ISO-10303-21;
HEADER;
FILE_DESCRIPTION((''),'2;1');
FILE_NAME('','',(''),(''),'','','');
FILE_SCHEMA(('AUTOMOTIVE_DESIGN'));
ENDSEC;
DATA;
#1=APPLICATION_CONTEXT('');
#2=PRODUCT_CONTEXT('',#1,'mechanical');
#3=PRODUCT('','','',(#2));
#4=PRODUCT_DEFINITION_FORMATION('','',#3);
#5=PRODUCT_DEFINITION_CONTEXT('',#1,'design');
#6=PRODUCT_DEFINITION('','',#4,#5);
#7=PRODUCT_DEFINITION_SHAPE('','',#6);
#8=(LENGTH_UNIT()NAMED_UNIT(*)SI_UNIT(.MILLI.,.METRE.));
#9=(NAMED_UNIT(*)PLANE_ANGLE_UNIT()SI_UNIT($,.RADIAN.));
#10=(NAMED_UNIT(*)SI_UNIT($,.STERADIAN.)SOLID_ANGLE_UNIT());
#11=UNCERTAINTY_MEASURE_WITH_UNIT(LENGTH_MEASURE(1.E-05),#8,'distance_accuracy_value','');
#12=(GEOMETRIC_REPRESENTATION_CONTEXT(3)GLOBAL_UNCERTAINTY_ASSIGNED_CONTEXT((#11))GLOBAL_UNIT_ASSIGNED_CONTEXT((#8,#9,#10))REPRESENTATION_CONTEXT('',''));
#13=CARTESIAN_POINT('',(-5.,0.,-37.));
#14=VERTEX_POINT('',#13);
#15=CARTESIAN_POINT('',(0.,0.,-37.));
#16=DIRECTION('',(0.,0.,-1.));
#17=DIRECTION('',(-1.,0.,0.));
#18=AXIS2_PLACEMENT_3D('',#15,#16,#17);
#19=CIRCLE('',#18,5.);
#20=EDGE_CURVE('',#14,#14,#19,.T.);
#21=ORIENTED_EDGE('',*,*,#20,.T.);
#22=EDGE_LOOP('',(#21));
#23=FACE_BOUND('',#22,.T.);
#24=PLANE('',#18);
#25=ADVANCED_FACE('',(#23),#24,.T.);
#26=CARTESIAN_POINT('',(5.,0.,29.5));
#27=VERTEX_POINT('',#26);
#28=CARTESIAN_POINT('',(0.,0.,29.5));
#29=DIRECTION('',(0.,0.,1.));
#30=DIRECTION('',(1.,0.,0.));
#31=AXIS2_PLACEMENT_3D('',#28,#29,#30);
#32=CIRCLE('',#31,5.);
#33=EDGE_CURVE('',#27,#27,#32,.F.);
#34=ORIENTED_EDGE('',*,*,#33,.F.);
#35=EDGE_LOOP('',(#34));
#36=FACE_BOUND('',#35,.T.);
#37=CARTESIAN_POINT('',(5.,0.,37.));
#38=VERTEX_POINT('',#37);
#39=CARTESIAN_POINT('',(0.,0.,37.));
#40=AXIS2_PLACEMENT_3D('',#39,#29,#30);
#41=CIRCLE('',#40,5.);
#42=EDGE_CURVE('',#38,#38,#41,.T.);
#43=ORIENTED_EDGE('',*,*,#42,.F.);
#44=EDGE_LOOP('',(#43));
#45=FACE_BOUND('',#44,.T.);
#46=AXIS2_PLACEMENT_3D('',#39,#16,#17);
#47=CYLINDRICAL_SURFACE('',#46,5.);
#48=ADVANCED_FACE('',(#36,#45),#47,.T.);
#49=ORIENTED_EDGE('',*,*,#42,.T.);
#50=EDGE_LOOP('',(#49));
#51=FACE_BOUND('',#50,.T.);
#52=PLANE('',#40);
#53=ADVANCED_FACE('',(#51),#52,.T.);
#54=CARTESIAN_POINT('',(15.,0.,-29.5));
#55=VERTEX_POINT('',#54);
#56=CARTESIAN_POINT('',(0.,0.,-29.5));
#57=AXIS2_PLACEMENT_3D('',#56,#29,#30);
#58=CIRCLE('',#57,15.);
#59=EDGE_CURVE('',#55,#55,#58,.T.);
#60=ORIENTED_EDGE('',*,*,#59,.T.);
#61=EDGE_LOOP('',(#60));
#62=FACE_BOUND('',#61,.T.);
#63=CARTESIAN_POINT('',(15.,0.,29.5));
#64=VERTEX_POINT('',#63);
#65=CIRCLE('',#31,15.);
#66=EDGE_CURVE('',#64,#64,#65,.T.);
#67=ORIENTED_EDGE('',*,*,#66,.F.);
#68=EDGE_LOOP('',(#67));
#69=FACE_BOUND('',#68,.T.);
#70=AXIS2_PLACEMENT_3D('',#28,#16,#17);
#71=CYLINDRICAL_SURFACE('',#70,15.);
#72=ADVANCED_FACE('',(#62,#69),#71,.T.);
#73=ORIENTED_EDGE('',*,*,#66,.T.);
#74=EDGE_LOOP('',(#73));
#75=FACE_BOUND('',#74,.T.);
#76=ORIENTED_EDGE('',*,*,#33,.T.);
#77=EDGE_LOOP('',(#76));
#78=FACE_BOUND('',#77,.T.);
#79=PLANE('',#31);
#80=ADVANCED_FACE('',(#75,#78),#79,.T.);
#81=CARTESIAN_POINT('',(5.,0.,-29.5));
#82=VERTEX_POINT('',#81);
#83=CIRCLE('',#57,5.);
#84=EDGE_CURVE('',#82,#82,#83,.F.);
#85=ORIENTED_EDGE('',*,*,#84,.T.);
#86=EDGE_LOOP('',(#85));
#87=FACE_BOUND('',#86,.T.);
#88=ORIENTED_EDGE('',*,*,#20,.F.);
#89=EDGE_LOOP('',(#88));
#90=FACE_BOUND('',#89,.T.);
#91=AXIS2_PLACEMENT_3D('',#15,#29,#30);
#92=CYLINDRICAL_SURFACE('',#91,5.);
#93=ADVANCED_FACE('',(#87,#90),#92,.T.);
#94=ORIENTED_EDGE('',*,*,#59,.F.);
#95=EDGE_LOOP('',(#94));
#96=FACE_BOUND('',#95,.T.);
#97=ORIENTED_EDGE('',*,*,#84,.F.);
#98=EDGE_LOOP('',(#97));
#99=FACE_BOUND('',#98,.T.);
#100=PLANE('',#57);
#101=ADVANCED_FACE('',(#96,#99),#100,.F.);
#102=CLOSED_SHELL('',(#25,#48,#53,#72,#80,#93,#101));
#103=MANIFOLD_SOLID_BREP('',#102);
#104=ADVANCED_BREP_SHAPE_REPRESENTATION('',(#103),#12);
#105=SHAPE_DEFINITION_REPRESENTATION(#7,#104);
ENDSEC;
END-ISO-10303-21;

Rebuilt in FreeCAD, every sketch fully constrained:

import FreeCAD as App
import Part
import Sketcher
Q = App.Units.Quantity

doc = App.newDocument("Part")
body = doc.addObject("PartDesign::Body", "Body")

# Sketch on XY plane
sketch1 = body.newObject("Sketcher::SketchObject", "Sketch")
sketch1.AttachmentSupport = (doc.getObject("XY_Plane"), [""])
sketch1.MapMode = "FlatFace"
sketch1.addGeometry(Part.Circle(App.Vector(0, 0, 0), App.Vector(0, 0, 1), 15), False)
sketch1.addConstraint([
    Sketcher.Constraint("Coincident", 0, 3, -1, 1),
    Sketcher.Constraint("Diameter", 0, Q("30 mm")),
])
pad1 = body.newObject("PartDesign::Pad", "Pad")
pad1.Profile = sketch1
pad1.Length = 59
pad1.Midplane = True

# Sketch on XY plane
sketch2 = body.newObject("Sketcher::SketchObject", "Sketch001")
sketch2.AttachmentSupport = (doc.getObject("XY_Plane"), [""])
sketch2.MapMode = "FlatFace"
sketch2.AttachmentOffset = App.Placement(App.Vector(0, 0, 29.5), App.Rotation())
sketch2.addGeometry(Part.Circle(App.Vector(0, 0, 0), App.Vector(0, 0, 1), 5), False)
sketch2.addConstraint([
    Sketcher.Constraint("Coincident", 0, 3, -1, 1),
    Sketcher.Constraint("Diameter", 0, Q("10 mm")),
])
pad2 = body.newObject("PartDesign::Pad", "Pad001")
pad2.Profile = sketch2
pad2.Length = 15
pad2.Midplane = True

# Sketch on XY plane
sketch3 = body.newObject("Sketcher::SketchObject", "Sketch002")
sketch3.AttachmentSupport = (doc.getObject("XY_Plane"), [""])
sketch3.MapMode = "FlatFace"
sketch3.AttachmentOffset = App.Placement(App.Vector(0, 0, -29.5), App.Rotation())
sketch3.addGeometry(Part.Circle(App.Vector(0, 0, 0), App.Vector(0, 0, 1), 5), False)
sketch3.addConstraint([
    Sketcher.Constraint("Coincident", 0, 3, -1, 1),
    Sketcher.Constraint("Diameter", 0, Q("10 mm")),
])
pad3 = body.newObject("PartDesign::Pad", "Pad002")
pad3.Profile = sketch3
pad3.Length = 15
pad3.Midplane = True

doc.recompute()
